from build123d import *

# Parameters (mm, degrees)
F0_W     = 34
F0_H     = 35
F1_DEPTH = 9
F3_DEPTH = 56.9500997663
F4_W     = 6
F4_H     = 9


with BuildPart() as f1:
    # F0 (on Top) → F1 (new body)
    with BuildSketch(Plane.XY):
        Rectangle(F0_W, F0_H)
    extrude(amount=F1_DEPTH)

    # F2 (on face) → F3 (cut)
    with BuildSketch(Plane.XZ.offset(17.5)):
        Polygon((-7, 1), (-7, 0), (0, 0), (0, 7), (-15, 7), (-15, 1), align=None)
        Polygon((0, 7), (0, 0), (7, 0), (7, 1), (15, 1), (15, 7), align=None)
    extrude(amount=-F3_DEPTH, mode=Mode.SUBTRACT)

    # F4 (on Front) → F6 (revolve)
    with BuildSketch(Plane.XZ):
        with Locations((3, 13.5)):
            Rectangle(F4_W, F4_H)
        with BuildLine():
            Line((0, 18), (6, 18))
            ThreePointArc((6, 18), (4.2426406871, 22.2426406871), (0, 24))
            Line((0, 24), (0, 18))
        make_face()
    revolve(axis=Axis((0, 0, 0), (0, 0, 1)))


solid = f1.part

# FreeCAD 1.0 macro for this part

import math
import FreeCAD as App
import Part
import Sketcher
Q = App.Units.Quantity


def add_polygon(sketch, points):
    """Adds a closed chain of lines whose ends are joined by coincident constraints."""
    first, n = sketch.GeometryCount, len(points)
    for a, b in zip(points, points[1:] + points[:1]):
        sketch.addGeometry(Part.LineSegment(App.Vector(*a, 0), App.Vector(*b, 0)), False)
    for i in range(n):
        sketch.addConstraint(Sketcher.Constraint("Coincident", first + i, 2, first + (i + 1) % n, 1))

doc = App.newDocument("Part")
params = doc.addObject("Spreadsheet::Sheet", "Params")
for row, (alias, value) in enumerate([
    ("sketch1_width", "34 mm"),
    ("sketch1_height", "35 mm"),
    ("pad1_length", "9 mm"),
    ("sketch2_width", "14 mm"),
    ("sketch2_width2", "8 mm"),
    ("sketch2_height", "1 mm"),
    ("sketch2_height2", "6 mm"),
    ("pocket1_length", "56.9501 mm"),
    ("sketch3_radius", "6 mm"),
    ("sketch3_height", "9 mm"),
    ("revolution_angle", "360 deg"),
], start=1):
    params.set(f"A{row}", alias)
    params.set(f"B{row}", "=" + value)
    params.setAlias(f"B{row}", alias)

body = doc.addObject("PartDesign::Body", "Body")

sketch1 = body.newObject("Sketcher::SketchObject", "Sketch")
sketch1.AttachmentSupport = (doc.getObject("XY_Plane"), [""])
sketch1.MapMode = "FlatFace"
add_polygon(sketch1, [(-17, 18), (-17, -18), (17, -18), (17, 18)])
sketch1.addConstraint([
    Sketcher.Constraint("Vertical", 0),
    Sketcher.Constraint("Horizontal", 1),
    Sketcher.Constraint("Vertical", 2),
    Sketcher.Constraint("Horizontal", 3),
    Sketcher.Constraint("Symmetric", 0, 2, 2, 2, -1, 1),
    Sketcher.Constraint("DistanceX", 1, 1, 1, 2, Q("34 mm")),
    Sketcher.Constraint("DistanceY", 0, 2, 0, 1, Q("35 mm")),
])
sketch1.setExpression("Constraints[9]", "Params.sketch1_width")
sketch1.setExpression("Constraints[10]", "Params.sketch1_height")
pad1 = body.newObject("PartDesign::Pad", "Pad")
pad1.Profile = sketch1
pad1.setExpression("Length", "Params.pad1_length")

sketch2 = body.newObject("Sketcher::SketchObject", "Sketch001")
sketch2.AttachmentSupport = (doc.getObject("XZ_Plane"), [""])
sketch2.MapMode = "FlatFace"
sketch2.AttachmentOffset = App.Placement(App.Vector(0, 0, 17.5), App.Rotation())
add_polygon(sketch2, [(-7, 1), (-7, 0), (7, 0), (7, 1), (15, 1), (15, 7), (-15, 7), (-15, 1)])
sketch2.addConstraint([
    Sketcher.Constraint("Vertical", 0),
    Sketcher.Constraint("Horizontal", 1),
    Sketcher.Constraint("Vertical", 2),
    Sketcher.Constraint("Horizontal", 3),
    Sketcher.Constraint("Vertical", 4),
    Sketcher.Constraint("Horizontal", 5),
    Sketcher.Constraint("Vertical", 6),
    Sketcher.Constraint("Horizontal", 7),
    Sketcher.Constraint("Symmetric", 0, 2, 1, 2, -1, 1),
    Sketcher.Constraint("Symmetric", 3, 2, 6, 2, -2),
    Sketcher.Constraint("DistanceX", 1, 1, 1, 2, Q("14 mm")),
    Sketcher.Constraint("DistanceX", 3, 1, 3, 2, Q("8 mm")),
    Sketcher.Constraint("DistanceY", 0, 2, 0, 1, Q("1 mm")),
    Sketcher.Constraint("DistanceY", 4, 1, 4, 2, Q("6 mm")),
])
sketch2.setExpression("Constraints[18]", "Params.sketch2_width")
sketch2.setExpression("Constraints[19]", "Params.sketch2_width2")
sketch2.setExpression("Constraints[20]", "Params.sketch2_height")
sketch2.setExpression("Constraints[21]", "Params.sketch2_height2")
pocket1 = body.newObject("PartDesign::Pocket", "Pocket")
pocket1.Profile = sketch2
pocket1.setExpression("Length", "Params.pocket1_length")

sketch3 = body.newObject("Sketcher::SketchObject", "Sketch002")
sketch3.AttachmentSupport = (doc.getObject("XZ_Plane"), [""])
sketch3.MapMode = "FlatFace"
sketch3.addGeometry([
    Part.LineSegment(App.Vector(0, 9, 0), App.Vector(6, 9, 0)),
    Part.LineSegment(App.Vector(6, 9, 0), App.Vector(6, 18, 0)),
    Part.ArcOfCircle(Part.Circle(App.Vector(0, 18, 0), App.Vector(0, 0, 1), 6), math.radians(0), math.radians(90)),
    Part.LineSegment(App.Vector(0, 24, 0), App.Vector(0, 9, 0)),
], False)
sketch3.addConstraint([
    Sketcher.Constraint("Coincident", 0, 2, 1, 1),
    Sketcher.Constraint("Tangent", 1, 2, 2, 1),
    Sketcher.Constraint("Coincident", 2, 2, 3, 1),
    Sketcher.Constraint("Coincident", 3, 2, 0, 1),
    Sketcher.Constraint("Horizontal", 0),
    Sketcher.Constraint("Vertical", 1),
    Sketcher.Constraint("Vertical", 3),
    Sketcher.Constraint("PointOnObject", 2, 3, -2),
    Sketcher.Constraint("PointOnObject", 2, 2, -2),
    Sketcher.Constraint("Radius", 2, Q("6 mm")),
    Sketcher.Constraint("DistanceY", 1, 1, 1, 2, Q("9 mm")),
    Sketcher.Constraint("DistanceY", -1, 1, 2, 3, Q("18 mm")),
])
sketch3.setExpression("Constraints[9]", "Params.sketch3_radius")
sketch3.setExpression("Constraints[10]", "Params.sketch3_height")
revolution = body.newObject("PartDesign::Revolution", "Revolution")
revolution.Profile = sketch3
revolution.ReferenceAxis = (sketch3, ["V_Axis"])
revolution.setExpression("Angle", "Params.revolution_angle")

doc.recompute()
